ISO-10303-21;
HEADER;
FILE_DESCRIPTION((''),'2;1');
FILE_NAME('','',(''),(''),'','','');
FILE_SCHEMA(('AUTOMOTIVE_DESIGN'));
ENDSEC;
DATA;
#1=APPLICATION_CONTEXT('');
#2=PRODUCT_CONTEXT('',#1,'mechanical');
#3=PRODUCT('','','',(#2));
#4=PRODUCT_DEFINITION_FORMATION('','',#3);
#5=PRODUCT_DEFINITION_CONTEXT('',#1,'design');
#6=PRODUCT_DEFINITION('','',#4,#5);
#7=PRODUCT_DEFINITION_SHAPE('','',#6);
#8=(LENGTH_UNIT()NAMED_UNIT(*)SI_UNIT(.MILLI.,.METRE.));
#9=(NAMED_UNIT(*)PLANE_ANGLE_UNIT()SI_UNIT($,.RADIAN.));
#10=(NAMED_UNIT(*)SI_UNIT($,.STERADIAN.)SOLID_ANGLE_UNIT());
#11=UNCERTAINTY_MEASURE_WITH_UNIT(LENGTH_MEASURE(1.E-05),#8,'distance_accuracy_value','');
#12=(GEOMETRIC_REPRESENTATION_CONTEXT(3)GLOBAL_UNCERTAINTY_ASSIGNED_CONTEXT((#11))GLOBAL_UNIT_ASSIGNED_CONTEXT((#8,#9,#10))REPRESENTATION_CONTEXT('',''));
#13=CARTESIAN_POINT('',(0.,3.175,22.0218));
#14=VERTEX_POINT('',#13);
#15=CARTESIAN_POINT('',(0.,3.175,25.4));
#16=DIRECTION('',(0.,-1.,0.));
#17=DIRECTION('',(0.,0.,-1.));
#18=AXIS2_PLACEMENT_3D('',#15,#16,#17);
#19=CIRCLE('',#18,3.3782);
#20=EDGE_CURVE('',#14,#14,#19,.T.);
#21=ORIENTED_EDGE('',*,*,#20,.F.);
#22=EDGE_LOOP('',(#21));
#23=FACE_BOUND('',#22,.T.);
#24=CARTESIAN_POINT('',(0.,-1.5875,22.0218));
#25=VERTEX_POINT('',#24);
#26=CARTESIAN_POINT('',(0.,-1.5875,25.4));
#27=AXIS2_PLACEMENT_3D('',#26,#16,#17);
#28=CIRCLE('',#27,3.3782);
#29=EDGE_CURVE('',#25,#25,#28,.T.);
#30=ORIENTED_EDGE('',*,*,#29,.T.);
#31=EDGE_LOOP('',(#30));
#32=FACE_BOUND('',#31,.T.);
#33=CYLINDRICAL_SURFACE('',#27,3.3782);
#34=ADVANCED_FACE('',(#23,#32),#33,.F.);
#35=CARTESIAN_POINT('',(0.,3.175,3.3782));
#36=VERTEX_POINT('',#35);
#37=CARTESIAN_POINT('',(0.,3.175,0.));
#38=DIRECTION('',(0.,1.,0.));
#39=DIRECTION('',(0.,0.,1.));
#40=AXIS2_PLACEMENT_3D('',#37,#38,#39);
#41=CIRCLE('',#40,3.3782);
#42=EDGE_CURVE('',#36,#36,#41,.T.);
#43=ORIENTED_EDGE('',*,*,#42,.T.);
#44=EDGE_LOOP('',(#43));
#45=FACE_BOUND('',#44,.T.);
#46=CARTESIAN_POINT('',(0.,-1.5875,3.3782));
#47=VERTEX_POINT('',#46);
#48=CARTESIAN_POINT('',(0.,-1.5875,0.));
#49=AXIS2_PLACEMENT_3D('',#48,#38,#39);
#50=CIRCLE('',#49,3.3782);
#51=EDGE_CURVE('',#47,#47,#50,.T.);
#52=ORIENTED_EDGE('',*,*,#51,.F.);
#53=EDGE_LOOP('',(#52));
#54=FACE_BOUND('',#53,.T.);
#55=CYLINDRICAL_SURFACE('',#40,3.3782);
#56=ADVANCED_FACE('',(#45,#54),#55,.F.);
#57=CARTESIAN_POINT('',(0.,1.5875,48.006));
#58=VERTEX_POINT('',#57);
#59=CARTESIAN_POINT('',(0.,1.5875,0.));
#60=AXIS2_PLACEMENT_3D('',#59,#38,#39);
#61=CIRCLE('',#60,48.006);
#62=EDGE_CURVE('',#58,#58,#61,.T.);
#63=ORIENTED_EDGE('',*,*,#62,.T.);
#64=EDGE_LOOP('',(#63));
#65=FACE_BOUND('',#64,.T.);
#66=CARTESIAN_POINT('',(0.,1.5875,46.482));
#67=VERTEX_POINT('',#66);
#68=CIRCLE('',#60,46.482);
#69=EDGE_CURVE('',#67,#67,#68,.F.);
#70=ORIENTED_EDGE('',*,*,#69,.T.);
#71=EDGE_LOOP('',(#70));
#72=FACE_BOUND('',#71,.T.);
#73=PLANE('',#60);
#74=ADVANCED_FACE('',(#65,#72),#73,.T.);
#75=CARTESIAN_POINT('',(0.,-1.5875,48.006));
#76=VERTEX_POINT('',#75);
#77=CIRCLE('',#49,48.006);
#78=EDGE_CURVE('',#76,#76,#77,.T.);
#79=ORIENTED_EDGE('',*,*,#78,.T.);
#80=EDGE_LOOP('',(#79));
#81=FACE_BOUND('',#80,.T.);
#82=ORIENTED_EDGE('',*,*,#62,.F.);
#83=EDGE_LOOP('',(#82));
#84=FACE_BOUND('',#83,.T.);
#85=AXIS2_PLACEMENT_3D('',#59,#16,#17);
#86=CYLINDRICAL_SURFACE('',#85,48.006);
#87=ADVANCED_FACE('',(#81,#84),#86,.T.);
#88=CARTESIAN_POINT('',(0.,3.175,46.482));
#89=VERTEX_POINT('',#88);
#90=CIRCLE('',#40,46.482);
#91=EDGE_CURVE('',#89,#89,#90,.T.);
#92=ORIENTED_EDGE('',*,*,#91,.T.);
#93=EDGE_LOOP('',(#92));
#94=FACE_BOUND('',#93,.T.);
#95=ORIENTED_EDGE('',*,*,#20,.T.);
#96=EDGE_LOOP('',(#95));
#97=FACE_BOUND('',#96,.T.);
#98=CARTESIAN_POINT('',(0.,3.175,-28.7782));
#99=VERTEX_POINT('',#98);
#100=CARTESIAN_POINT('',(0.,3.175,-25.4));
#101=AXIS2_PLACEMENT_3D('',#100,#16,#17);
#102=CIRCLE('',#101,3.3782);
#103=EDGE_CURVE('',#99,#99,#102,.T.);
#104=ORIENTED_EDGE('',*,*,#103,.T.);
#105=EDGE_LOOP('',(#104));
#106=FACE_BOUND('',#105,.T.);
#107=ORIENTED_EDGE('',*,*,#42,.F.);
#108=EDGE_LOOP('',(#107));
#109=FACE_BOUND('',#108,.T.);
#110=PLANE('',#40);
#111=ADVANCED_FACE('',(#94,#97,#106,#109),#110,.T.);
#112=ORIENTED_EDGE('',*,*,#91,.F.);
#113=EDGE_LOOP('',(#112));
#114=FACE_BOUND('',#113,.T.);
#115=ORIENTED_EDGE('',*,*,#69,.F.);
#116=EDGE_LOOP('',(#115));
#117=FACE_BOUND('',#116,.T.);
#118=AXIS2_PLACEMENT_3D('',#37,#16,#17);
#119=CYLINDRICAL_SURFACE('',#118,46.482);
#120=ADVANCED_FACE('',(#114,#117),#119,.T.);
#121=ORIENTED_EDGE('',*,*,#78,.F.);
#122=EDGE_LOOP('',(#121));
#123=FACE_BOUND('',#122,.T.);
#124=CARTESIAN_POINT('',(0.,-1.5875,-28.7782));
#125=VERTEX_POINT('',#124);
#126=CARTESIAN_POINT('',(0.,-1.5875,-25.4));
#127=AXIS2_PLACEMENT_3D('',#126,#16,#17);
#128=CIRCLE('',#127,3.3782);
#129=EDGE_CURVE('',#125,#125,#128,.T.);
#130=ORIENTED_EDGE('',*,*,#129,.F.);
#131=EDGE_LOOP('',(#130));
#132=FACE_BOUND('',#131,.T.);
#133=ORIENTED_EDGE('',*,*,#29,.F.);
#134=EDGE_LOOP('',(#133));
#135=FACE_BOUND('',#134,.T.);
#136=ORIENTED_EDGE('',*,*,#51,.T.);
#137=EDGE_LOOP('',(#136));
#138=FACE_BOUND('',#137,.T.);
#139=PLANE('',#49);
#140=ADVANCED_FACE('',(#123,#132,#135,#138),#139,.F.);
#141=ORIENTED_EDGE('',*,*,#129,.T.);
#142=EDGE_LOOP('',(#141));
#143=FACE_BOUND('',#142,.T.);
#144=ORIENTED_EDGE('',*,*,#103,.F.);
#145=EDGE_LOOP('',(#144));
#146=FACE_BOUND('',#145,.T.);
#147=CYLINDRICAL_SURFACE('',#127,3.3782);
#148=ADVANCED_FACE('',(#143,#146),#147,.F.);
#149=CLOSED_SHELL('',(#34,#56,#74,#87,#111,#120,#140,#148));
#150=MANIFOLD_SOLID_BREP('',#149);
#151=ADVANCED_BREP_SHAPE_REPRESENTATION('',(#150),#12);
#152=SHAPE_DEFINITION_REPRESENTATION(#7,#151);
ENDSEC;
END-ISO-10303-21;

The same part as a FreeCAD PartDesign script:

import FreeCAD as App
import Part
import Sketcher
from FreeCAD import Vector
Q = App.Units.Quantity

doc = App.newDocument("Part")
body = doc.addObject("PartDesign::Body", "Body")

sketch1 = body.newObject("Sketcher::SketchObject", "Sketch")
sketch1.AttachmentSupport = (doc.getObject("XZ_Plane"), [""])
sketch1.MapMode = "FlatFace"
sketch1.addGeometry(Part.Circle(Vector(0, 0, 0), Vector(0, 0, 1), 48.006), False)
sketch1.addConstraint([
    Sketcher.Constraint("Coincident", 0, 3, -1, 1),
    Sketcher.Constraint("Diameter", 0, Q("3.78 in")),
])
pad1 = body.newObject("PartDesign::Pad", "Pad")
pad1.Profile = sketch1
pad1.Length = Q("0.125 in")
pad1.Midplane = True

sketch2 = body.newObject("Sketcher::SketchObject", "Sketch001")
sketch2.AttachmentSupport = (doc.getObject("XZ_Plane"), [""])
sketch2.MapMode = "FlatFace"
sketch2.AttachmentOffset = App.Placement(Vector(0, 0, -0.0625 * 25.4), App.Rotation())
sketch2.addGeometry(Part.Circle(Vector(0, 0, 0), Vector(0, 0, 1), 46.482), False)
sketch2.addConstraint([
    Sketcher.Constraint("Coincident", 0, 3, -1, 1),
    Sketcher.Constraint("Diameter", 0, Q("3.66 in")),
])
pad2 = body.newObject("PartDesign::Pad", "Pad001")
pad2.Profile = sketch2
pad2.Length = Q("0.125 in")
pad2.Midplane = True

sketch3 = body.newObject("Sketcher::SketchObject", "Sketch002")
sketch3.AttachmentSupport = (doc.getObject("XZ_Plane"), [""])
sketch3.MapMode = "FlatFace"
sketch3.AttachmentOffset = App.Placement(Vector(0, 0, -0.125 * 25.4), App.Rotation())
sketch3.addGeometry(Part.Circle(Vector(0, 0, 0), Vector(0, 0, 1), 3.3782), False)
sketch3.addConstraint([
    Sketcher.Constraint("Coincident", 0, 3, -1, 1),
    Sketcher.Constraint("Diameter", 0, Q("0.266 in")),
])
doc.recompute()
hole = body.newObject("PartDesign::Hole", "Hole")
hole.Profile = sketch3
hole.ThreadType = "None"
hole.Diameter = Q("0.266 in")
hole.DepthType = "ThroughAll"
hole.Reversed = True

sketch4 = body.newObject("Sketcher::SketchObject", "Sketch003")
sketch4.AttachmentSupport = (doc.getObject("XZ_Plane"), [""])
sketch4.MapMode = "FlatFace"
sketch4.AttachmentOffset = App.Placement(Vector(0, 0, 0.0625 * 25.4), App.Rotation())
sketch4.addGeometry([
    Part.Circle(Vector(0, -25.4, 0), Vector(0, 0, 1), 3.3782),
    Part.Circle(Vector(0, 25.4, 0), Vector(0, 0, 1), 3.3782),
], False)
sketch4.addConstraint([
    Sketcher.Constraint("Equal", 0, 1),
    Sketcher.Constraint("Symmetric", 0, 3, 1, 3, -1, 1),
    Sketcher.Constraint("PointOnObject", 0, 3, -2),
    Sketcher.Constraint("Diameter", 0, Q("0.266 in")),
    Sketcher.Constraint("DistanceY", 0, 3, -1, 1, Q("1 in")),
])
doc.recompute()
hole2 = body.newObject("PartDesign::Hole", "Hole001")
hole2.Profile = sketch4
hole2.ThreadType = "None"
hole2.Diameter = Q("0.266 in")
hole2.DepthType = "ThroughAll"

doc.recompute()
